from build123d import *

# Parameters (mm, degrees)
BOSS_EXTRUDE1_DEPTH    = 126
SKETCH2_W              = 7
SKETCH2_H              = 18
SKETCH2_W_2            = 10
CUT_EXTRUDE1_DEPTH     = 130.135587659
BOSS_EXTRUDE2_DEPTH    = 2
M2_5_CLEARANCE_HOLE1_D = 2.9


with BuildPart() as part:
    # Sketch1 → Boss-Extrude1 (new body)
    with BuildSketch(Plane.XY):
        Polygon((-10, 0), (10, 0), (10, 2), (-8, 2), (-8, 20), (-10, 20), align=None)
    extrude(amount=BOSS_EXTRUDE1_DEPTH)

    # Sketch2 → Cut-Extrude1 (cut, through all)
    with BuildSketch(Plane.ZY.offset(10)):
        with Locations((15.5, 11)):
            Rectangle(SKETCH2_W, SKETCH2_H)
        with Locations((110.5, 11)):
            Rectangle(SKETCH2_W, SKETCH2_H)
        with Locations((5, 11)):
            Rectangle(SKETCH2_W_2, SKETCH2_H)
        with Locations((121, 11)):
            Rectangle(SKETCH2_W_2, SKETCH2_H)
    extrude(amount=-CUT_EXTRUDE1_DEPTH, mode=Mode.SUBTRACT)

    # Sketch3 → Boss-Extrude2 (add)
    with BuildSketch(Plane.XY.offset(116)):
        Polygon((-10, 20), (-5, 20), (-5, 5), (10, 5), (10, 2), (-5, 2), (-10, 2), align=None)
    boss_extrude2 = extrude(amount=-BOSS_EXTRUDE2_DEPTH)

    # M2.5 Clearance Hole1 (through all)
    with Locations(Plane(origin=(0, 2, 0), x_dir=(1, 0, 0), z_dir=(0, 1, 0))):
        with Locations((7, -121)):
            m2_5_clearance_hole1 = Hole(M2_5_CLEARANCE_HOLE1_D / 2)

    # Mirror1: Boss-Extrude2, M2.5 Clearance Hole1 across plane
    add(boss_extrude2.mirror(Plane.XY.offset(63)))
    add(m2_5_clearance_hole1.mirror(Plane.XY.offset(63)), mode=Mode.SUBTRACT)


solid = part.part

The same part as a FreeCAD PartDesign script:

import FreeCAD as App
import Part
import Sketcher
from FreeCAD import Vector
Q = App.Units.Quantity

doc = App.newDocument("Part")
body = doc.addObject("PartDesign::Body", "Body")

# Sketch on XY plane
sketch1 = body.newObject("Sketcher::SketchObject", "Sketch")
sketch1.AttachmentSupport = (doc.getObject("XY_Plane"), [""])
sketch1.MapMode = "FlatFace"
sketch1.addGeometry(Part.LineSegment(Vector(-10, 0, 0), Vector(10, 0, 0)), False)
sketch1.addGeometry(Part.LineSegment(Vector(10, 0, 0), Vector(10, 2, 0)), False)
sketch1.addGeometry(Part.LineSegment(Vector(10, 2, 0), Vector(-8, 2, 0)), False)
sketch1.addGeometry(Part.LineSegment(Vector(-8, 2, 0), Vector(-8, 20, 0)), False)
sketch1.addGeometry(Part.LineSegment(Vector(-8, 20, 0), Vector(-10, 20, 0)), False)
sketch1.addGeometry(Part.LineSegment(Vector(-10, 20, 0), Vector(-10, 0, 0)), False)
sketch1.addConstraint(Sketcher.Constraint("Coincident", 0, 2, 1, 1))
sketch1.addConstraint(Sketcher.Constraint("Coincident", 1, 2, 2, 1))
sketch1.addConstraint(Sketcher.Constraint("Coincident", 2, 2, 3, 1))
sketch1.addConstraint(Sketcher.Constraint("Coincident", 3, 2, 4, 1))
sketch1.addConstraint(Sketcher.Constraint("Coincident", 4, 2, 5, 1))
sketch1.addConstraint(Sketcher.Constraint("Coincident", 5, 2, 0, 1))
sketch1.addConstraint(Sketcher.Constraint("Horizontal", 0))
sketch1.addConstraint(Sketcher.Constraint("Vertical", 1))
sketch1.addConstraint(Sketcher.Constraint("Horizontal", 2))
sketch1.addConstraint(Sketcher.Constraint("Vertical", 3))
sketch1.addConstraint(Sketcher.Constraint("Horizontal", 4))
sketch1.addConstraint(Sketcher.Constraint("Vertical", 5))
sketch1.addConstraint(Sketcher.Constraint("Symmetric", 0, 2, 5, 2, -1, 1))
sketch1.addConstraint(Sketcher.Constraint("Equal", 4, 1))
sketch1.addConstraint(Sketcher.Constraint("Equal", 2, 3))
sketch1.addConstraint(Sketcher.Constraint("DistanceX", 0, 1, 0, 2, Q("20 mm")))
sketch1.addConstraint(Sketcher.Constraint("DistanceX", 2, 2, 2, 1, Q("18 mm")))
pad1 = body.newObject("PartDesign::Pad", "Pad")
pad1.Profile = sketch1
pad1.Length = 126

# Sketch on YZ plane
sketch2 = body.newObject("Sketcher::SketchObject", "Sketch001")
sketch2.AttachmentSupport = (doc.getObject("YZ_Plane"), [""])
sketch2.MapMode = "FlatFace"
sketch2.AttachmentOffset = App.Placement(Vector(0, 0, -10), App.Rotation())
sketch2.addGeometry(Part.LineSegment(Vector(20, 12, 0), Vector(2, 12, 0)), False)
sketch2.addGeometry(Part.LineSegment(Vector(2, 12, 0), Vector(2, 19, 0)), False)
sketch2.addGeometry(Part.LineSegment(Vector(2, 19, 0), Vector(20, 19, 0)), False)
sketch2.addGeometry(Part.LineSegment(Vector(20, 19, 0), Vector(20, 12, 0)), False)
sketch2.addGeometry(Part.LineSegment(Vector(20, 107, 0), Vector(2, 107, 0)), False)
sketch2.addGeometry(Part.LineSegment(Vector(2, 107, 0), Vector(2, 114, 0)), False)
sketch2.addGeometry(Part.LineSegment(Vector(2, 114, 0), Vector(20, 114, 0)), False)
sketch2.addGeometry(Part.LineSegment(Vector(20, 114, 0), Vector(20, 107, 0)), False)
sketch2.addGeometry(Part.LineSegment(Vector(20, 0, 0), Vector(2, 0, 0)), False)
sketch2.addGeometry(Part.LineSegment(Vector(2, 0, 0), Vector(2, 10, 0)), False)
sketch2.addGeometry(Part.LineSegment(Vector(2, 10, 0), Vector(20, 10, 0)), False)
sketch2.addGeometry(Part.LineSegment(Vector(20, 10, 0), Vector(20, 0, 0)), False)
sketch2.addGeometry(Part.LineSegment(Vector(20, 116, 0), Vector(2, 116, 0)), False)
sketch2.addGeometry(Part.LineSegment(Vector(2, 116, 0), Vector(2, 126, 0)), False)
sketch2.addGeometry(Part.LineSegment(Vector(2, 126, 0), Vector(20, 126, 0)), False)
sketch2.addGeometry(Part.LineSegment(Vector(20, 126, 0), Vector(20, 116, 0)), False)
sketch2.addConstraint(Sketcher.Constraint("Coincident", 0, 2, 1, 1))
sketch2.addConstraint(Sketcher.Constraint("Coincident", 1, 2, 2, 1))
sketch2.addConstraint(Sketcher.Constraint("Coincident", 2, 2, 3, 1))
sketch2.addConstraint(Sketcher.Constraint("Coincident", 3, 2, 0, 1))
sketch2.addConstraint(Sketcher.Constraint("Coincident", 4, 2, 5, 1))
sketch2.addConstraint(Sketcher.Constraint("Coincident", 5, 2, 6, 1))
sketch2.addConstraint(Sketcher.Constraint("Coincident", 6, 2, 7, 1))
sketch2.addConstraint(Sketcher.Constraint("Coincident", 7, 2, 4, 1))
sketch2.addConstraint(Sketcher.Constraint("Coincident", 8, 2, 9, 1))
sketch2.addConstraint(Sketcher.Constraint("Coincident", 9, 2, 10, 1))
sketch2.addConstraint(Sketcher.Constraint("Coincident", 10, 2, 11, 1))
sketch2.addConstraint(Sketcher.Constraint("Coincident", 11, 2, 8, 1))
sketch2.addConstraint(Sketcher.Constraint("Coincident", 12, 2, 13, 1))
sketch2.addConstraint(Sketcher.Constraint("Coincident", 13, 2, 14, 1))
sketch2.addConstraint(Sketcher.Constraint("Coincident", 14, 2, 15, 1))
sketch2.addConstraint(Sketcher.Constraint("Coincident", 15, 2, 12, 1))
sketch2.addConstraint(Sketcher.Constraint("Horizontal", 0))
sketch2.addConstraint(Sketcher.Constraint("Vertical", 1))
sketch2.addConstraint(Sketcher.Constraint("Horizontal", 2))
sketch2.addConstraint(Sketcher.Constraint("Vertical", 3))
sketch2.addConstraint(Sketcher.Constraint("Horizontal", 4))
sketch2.addConstraint(Sketcher.Constraint("Vertical", 5))
sketch2.addConstraint(Sketcher.Constraint("Horizontal", 6))
sketch2.addConstraint(Sketcher.Constraint("Vertical", 7))
sketch2.addConstraint(Sketcher.Constraint("Horizontal", 8))
sketch2.addConstraint(Sketcher.Constraint("Vertical", 9))
sketch2.addConstraint(Sketcher.Constraint("Horizontal", 10))
sketch2.addConstraint(Sketcher.Constraint("Vertical", 11))
sketch2.addConstraint(Sketcher.Constraint("Horizontal", 12))
sketch2.addConstraint(Sketcher.Constraint("Vertical", 13))
sketch2.addConstraint(Sketcher.Constraint("Horizontal", 14))
sketch2.addConstraint(Sketcher.Constraint("Vertical", 15))
sketch2.addConstraint(Sketcher.Constraint("PointOnObject", 8, 2, -1))
sketch2.addConstraint(Sketcher.Constraint("Vertical", 1, 2, 4, 2))
sketch2.addConstraint(Sketcher.Constraint("Vertical", 3, 2, 6, 2))
sketch2.addConstraint(Sketcher.Constraint("Vertical", 5, 2, 8, 2))
sketch2.addConstraint(Sketcher.Constraint("Vertical", 7, 2, 10, 2))
sketch2.addConstraint(Sketcher.Constraint("Vertical", 9, 2, 12, 2))
sketch2.addConstraint(Sketcher.Constraint("Vertical", 11, 2, 14, 2))
sketch2.addConstraint(Sketcher.Constraint("Equal", 3, 5))
sketch2.addConstraint(Sketcher.Constraint("Equal", 11, 13))
sketch2.addConstraint(Sketcher.Constraint("DistanceX", 0, 2, 0, 1, Q("18 mm")))
sketch2.addConstraint(Sketcher.Constraint("DistanceY", 1, 1, 1, 2, Q("7 mm")))
sketch2.addConstraint(Sketcher.Constraint("DistanceY", 9, 1, 9, 2, Q("10 mm")))
sketch2.addConstraint(Sketcher.Constraint("DistanceX", -1, 1, 0, 2, Q("2 mm")))
sketch2.addConstraint(Sketcher.Constraint("DistanceY", -1, 1, 0, 2, Q("12 mm")))
sketch2.addConstraint(Sketcher.Constraint("DistanceY", -1, 1, 4, 2, Q("107 mm")))
sketch2.addConstraint(Sketcher.Constraint("DistanceY", -1, 1, 12, 2, Q("116 mm")))
pocket1 = body.newObject("PartDesign::Pocket", "Pocket")
pocket1.Profile = sketch2
pocket1.Type = "ThroughAll"
pocket1.Reversed = True

# Sketch on XY plane
sketch3 = body.newObject("Sketcher::SketchObject", "Sketch002")
sketch3.AttachmentSupport = (doc.getObject("XY_Plane"), [""])
sketch3.MapMode = "FlatFace"
sketch3.AttachmentOffset = App.Placement(Vector(0, 0, 116), App.Rotation())
sketch3.addGeometry(Part.LineSegment(Vector(-5, 20, 0), Vector(-10, 20, 0)), False)
sketch3.addGeometry(Part.LineSegment(Vector(-10, 20, 0), Vector(-10, 2, 0)), False)
sketch3.addGeometry(Part.LineSegment(Vector(-10, 2, 0), Vector(10, 2, 0)), False)
sketch3.addGeometry(Part.LineSegment(Vector(10, 2, 0), Vector(10, 5, 0)), False)
sketch3.addGeometry(Part.LineSegment(Vector(10, 5, 0), Vector(-5, 5, 0)), False)
sketch3.addGeometry(Part.LineSegment(Vector(-5, 5, 0), Vector(-5, 20, 0)), False)
sketch3.addConstraint(Sketcher.Constraint("Coincident", 0, 2, 1, 1))
sketch3.addConstraint(Sketcher.Constraint("Coincident", 1, 2, 2, 1))
sketch3.addConstraint(Sketcher.Constraint("Coincident", 2, 2, 3, 1))
sketch3.addConstraint(Sketcher.Constraint("Coincident", 3, 2, 4, 1))
sketch3.addConstraint(Sketcher.Constraint("Coincident", 4, 2, 5, 1))
sketch3.addConstraint(Sketcher.Constraint("Coincident", 5, 2, 0, 1))
sketch3.addConstraint(Sketcher.Constraint("Horizontal", 0))
sketch3.addConstraint(Sketcher.Constraint("Vertical", 1))
sketch3.addConstraint(Sketcher.Constraint("Horizontal", 2))
sketch3.addConstraint(Sketcher.Constraint("Vertical", 3))
sketch3.addConstraint(Sketcher.Constraint("Horizontal", 4))
sketch3.addConstraint(Sketcher.Constraint("Vertical", 5))
sketch3.addConstraint(Sketcher.Constraint("Equal", 4, 5))
sketch3.addConstraint(Sketcher.Constraint("DistanceX", 0, 2, 0, 1, Q("5 mm")))
sketch3.addConstraint(Sketcher.Constraint("DistanceX", 2, 1, 2, 2, Q("20 mm")))
sketch3.addConstraint(Sketcher.Constraint("DistanceY", 1, 2, 1, 1, Q("18 mm")))
sketch3.addConstraint(Sketcher.Constraint("DistanceX", 0, 2, -1, 1, Q("10 mm")))
sketch3.addConstraint(Sketcher.Constraint("DistanceY", -1, 1, 0, 2, Q("20 mm")))
pad2 = body.newObject("PartDesign::Pad", "Pad001")
pad2.Profile = sketch3
pad2.Length = 2
pad2.Reversed = True

# Sketch on XZ plane
sketch4 = body.newObject("Sketcher::SketchObject", "Sketch003")
sketch4.AttachmentSupport = (doc.getObject("XZ_Plane"), [""])
sketch4.MapMode = "FlatFace"
sketch4.AttachmentOffset = App.Placement(Vector(0, 0, -2), App.Rotation())
sketch4.addGeometry(Part.Circle(Vector(7, 121, 0), Vector(0, 0, 1), 1.45), False)
sketch4.addConstraint(Sketcher.Constraint("Diameter", 0, Q("2.9 mm")))
sketch4.addConstraint(Sketcher.Constraint("DistanceX", -1, 1, 0, 3, Q("7 mm")))
sketch4.addConstraint(Sketcher.Constraint("DistanceY", -1, 1, 0, 3, Q("121 mm")))
doc.recompute()
hole = body.newObject("PartDesign::Hole", "Hole")
hole.Profile = sketch4
hole.ThreadType = "None"
hole.Diameter = 2.9
hole.DepthType = "ThroughAll"
hole.Reversed = True
doc.recompute()

datumplane = body.newObject("PartDesign::Plane", "DatumPlane")
datumplane.AttachmentSupport = (doc.getObject("XY_Plane"), [""])
datumplane.MapMode = "FlatFace"
datumplane.AttachmentOffset = App.Placement(Vector(0, 0, 63), App.Rotation())
mirrored = body.newObject("PartDesign::Mirrored", "Mirrored")
mirrored.Originals = [pad2, hole]
mirrored.MirrorPlane = (datumplane, [""])
body.Tip = mirrored

doc.recompute()
